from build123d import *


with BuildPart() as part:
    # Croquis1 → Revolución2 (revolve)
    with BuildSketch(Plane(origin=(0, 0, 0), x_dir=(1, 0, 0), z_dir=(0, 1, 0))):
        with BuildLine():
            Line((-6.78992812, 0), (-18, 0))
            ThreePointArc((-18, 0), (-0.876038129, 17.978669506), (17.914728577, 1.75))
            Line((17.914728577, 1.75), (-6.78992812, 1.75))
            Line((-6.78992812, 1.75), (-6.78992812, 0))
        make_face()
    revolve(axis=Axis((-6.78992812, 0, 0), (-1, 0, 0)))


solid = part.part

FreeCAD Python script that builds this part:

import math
import FreeCAD as App
import Part
import Sketcher
from FreeCAD import Vector
Q = App.Units.Quantity

doc = App.newDocument("Part")
body = doc.addObject("PartDesign::Body", "Body")

sketch1 = body.newObject("Sketcher::SketchObject", "Sketch")
sketch1.AttachmentSupport = (doc.getObject("XZ_Plane"), [""])
sketch1.MapMode = "FlatFace"
sketch1.addGeometry(Part.LineSegment(Vector(-18, 0, 0), Vector(-6.8, 0, 0)), False)
sketch1.addGeometry(Part.LineSegment(Vector(-6.8, 0, 0), Vector(-6.8, -1.8, 0)), False)
sketch1.addGeometry(Part.LineSegment(Vector(-6.8, -1.8, 0), Vector(17.9, -1.8, 0)), False)
sketch1.addGeometry(Part.ArcOfCircle(Part.Circle(Vector(0, 0, 0), Vector(0, 0, 1), 18), math.radians(180), math.radians(354)), False)
sketch1.addConstraint(Sketcher.Constraint("Coincident", 0, 2, 1, 1))
sketch1.addConstraint(Sketcher.Constraint("Coincident", 1, 2, 2, 1))
sketch1.addConstraint(Sketcher.Constraint("Coincident", 2, 2, 3, 2))
sketch1.addConstraint(Sketcher.Constraint("Coincident", 3, 1, 0, 1))
sketch1.addConstraint(Sketcher.Constraint("Horizontal", 0))
sketch1.addConstraint(Sketcher.Constraint("Vertical", 1))
sketch1.addConstraint(Sketcher.Constraint("Horizontal", 2))
sketch1.addConstraint(Sketcher.Constraint("Coincident", 3, 3, -1, 1))
sketch1.addConstraint(Sketcher.Constraint("PointOnObject", 0, 2, -1))
sketch1.addConstraint(Sketcher.Constraint("Radius", 3, Q("18 mm")))
sketch1.addConstraint(Sketcher.Constraint("DistanceY", 1, 2, 1, 1, Q("1.75 mm")))
sketch1.addConstraint(Sketcher.Constraint("DistanceX", 0, 1, 0, 2, Q("11.210072 mm")))
revolution = body.newObject("PartDesign::Revolution", "Revolution")
revolution.Profile = sketch1
revolution.ReferenceAxis = (sketch1, ["H_Axis"])
revolution.Angle = 360

doc.recompute()
